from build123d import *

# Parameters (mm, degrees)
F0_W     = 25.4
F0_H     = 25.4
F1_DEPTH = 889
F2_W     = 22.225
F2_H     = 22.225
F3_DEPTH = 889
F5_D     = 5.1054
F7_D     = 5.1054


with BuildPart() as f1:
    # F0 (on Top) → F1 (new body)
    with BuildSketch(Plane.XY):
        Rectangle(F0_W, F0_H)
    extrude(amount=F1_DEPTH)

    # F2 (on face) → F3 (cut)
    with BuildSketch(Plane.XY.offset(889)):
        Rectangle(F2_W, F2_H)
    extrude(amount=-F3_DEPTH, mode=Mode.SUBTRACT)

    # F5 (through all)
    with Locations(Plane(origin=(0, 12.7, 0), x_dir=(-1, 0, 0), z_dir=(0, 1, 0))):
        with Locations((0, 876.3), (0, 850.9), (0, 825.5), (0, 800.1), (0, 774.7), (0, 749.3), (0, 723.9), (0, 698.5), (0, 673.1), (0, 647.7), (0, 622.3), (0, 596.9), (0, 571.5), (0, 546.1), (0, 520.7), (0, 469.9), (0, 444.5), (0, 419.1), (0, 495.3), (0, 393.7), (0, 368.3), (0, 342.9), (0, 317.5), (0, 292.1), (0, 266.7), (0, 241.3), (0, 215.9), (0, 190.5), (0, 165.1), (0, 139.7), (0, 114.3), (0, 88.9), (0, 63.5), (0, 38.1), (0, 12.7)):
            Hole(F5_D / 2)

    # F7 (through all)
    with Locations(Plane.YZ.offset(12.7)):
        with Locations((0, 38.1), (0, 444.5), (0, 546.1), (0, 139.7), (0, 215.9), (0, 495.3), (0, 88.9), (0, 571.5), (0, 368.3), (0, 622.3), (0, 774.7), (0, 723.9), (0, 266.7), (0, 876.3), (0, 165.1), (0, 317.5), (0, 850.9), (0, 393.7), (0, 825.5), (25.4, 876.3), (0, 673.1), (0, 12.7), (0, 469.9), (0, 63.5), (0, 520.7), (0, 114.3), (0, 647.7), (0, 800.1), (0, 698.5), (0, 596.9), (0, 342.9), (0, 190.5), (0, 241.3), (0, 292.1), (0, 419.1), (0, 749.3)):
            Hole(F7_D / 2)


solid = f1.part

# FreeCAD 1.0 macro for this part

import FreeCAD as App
import Part
import Sketcher
from FreeCAD import Vector
Q = App.Units.Quantity


def add_polygon(sketch, points):
    """Adds a closed chain of lines whose ends are joined by coincident constraints."""
    first, n = sketch.GeometryCount, len(points)
    for a, b in zip(points, points[1:] + points[:1]):
        sketch.addGeometry(Part.LineSegment(App.Vector(*a, 0), App.Vector(*b, 0)), False)
    for i in range(n):
        sketch.addConstraint(Sketcher.Constraint("Coincident", first + i, 2, first + (i + 1) % n, 1))

doc = App.newDocument("Part")
body = doc.addObject("PartDesign::Body", "Body")

# Sketch on XY plane
sketch1 = body.newObject("Sketcher::SketchObject", "Sketch")
sketch1.AttachmentSupport = (doc.getObject("XY_Plane"), [""])
sketch1.MapMode = "FlatFace"
add_polygon(sketch1, [(-13, 13), (-13, -13), (13, -13), (13, 13)])  # lines 0-3
sketch1.addConstraint(Sketcher.Constraint("Vertical", 0))
sketch1.addConstraint(Sketcher.Constraint("Horizontal", 1))
sketch1.addConstraint(Sketcher.Constraint("Vertical", 2))
sketch1.addConstraint(Sketcher.Constraint("Horizontal", 3))
sketch1.addConstraint(Sketcher.Constraint("Symmetric", 0, 2, 2, 2, -1, 1))
sketch1.addConstraint(Sketcher.Constraint("Equal", 3, 0))
sketch1.addConstraint(Sketcher.Constraint("DistanceX", 1, 1, 1, 2, Q("1 in")))
pad1 = body.newObject("PartDesign::Pad", "Pad")
pad1.Profile = sketch1
pad1.Length = Q("35 in")

# Sketch on XY plane
sketch2 = body.newObject("Sketcher::SketchObject", "Sketch001")
sketch2.AttachmentSupport = (doc.getObject("XY_Plane"), [""])
sketch2.MapMode = "FlatFace"
sketch2.AttachmentOffset = App.Placement(Vector(0, 0, 35 * 25.4), App.Rotation())
add_polygon(sketch2, [(-11, 11), (-11, -11), (11, -11), (11, 11)])  # lines 0-3
sketch2.addConstraint(Sketcher.Constraint("Vertical", 0))
sketch2.addConstraint(Sketcher.Constraint("Horizontal", 1))
sketch2.addConstraint(Sketcher.Constraint("Vertical", 2))
sketch2.addConstraint(Sketcher.Constraint("Horizontal", 3))
sketch2.addConstraint(Sketcher.Constraint("Symmetric", 0, 2, 2, 2, -1, 1))
sketch2.addConstraint(Sketcher.Constraint("Equal", 3, 0))
sketch2.addConstraint(Sketcher.Constraint("DistanceX", 1, 1, 1, 2, Q("0.875 in")))
pocket1 = body.newObject("PartDesign::Pocket", "Pocket")
pocket1.Profile = sketch2
pocket1.Length = Q("35 in")

# Sketch on XZ plane
sketch3 = body.newObject("Sketcher::SketchObject", "Sketch002")
sketch3.AttachmentSupport = (doc.getObject("XZ_Plane"), [""])
sketch3.MapMode = "FlatFace"
sketch3.AttachmentOffset = App.Placement(Vector(0, 0, -0.5 * 25.4), App.Rotation())
sketch3.addGeometry(Part.Circle(Vector(0, 876.3, 0), Vector(0, 0, 1), 2.6), False)
sketch3.addGeometry(Part.Circle(Vector(0, 850.9, 0), Vector(0, 0, 1), 2.6), False)
sketch3.addGeometry(Part.Circle(Vector(0, 825.5, 0), Vector(0, 0, 1), 2.6), False)
sketch3.addGeometry(Part.Circle(Vector(0, 800.1, 0), Vector(0, 0, 1), 2.6), False)
sketch3.addGeometry(Part.Circle(Vector(0, 774.7, 0), Vector(0, 0, 1), 2.6), False)
sketch3.addGeometry(Part.Circle(Vector(0, 749.3, 0), Vector(0, 0, 1), 2.6), False)
sketch3.addGeometry(Part.Circle(Vector(0, 723.9, 0), Vector(0, 0, 1), 2.6), False)
sketch3.addGeometry(Part.Circle(Vector(0, 698.5, 0), Vector(0, 0, 1), 2.6), False)
sketch3.addGeometry(Part.Circle(Vector(0, 673.1, 0), Vector(0, 0, 1), 2.6), False)
sketch3.addGeometry(Part.Circle(Vector(0, 647.7, 0), Vector(0, 0, 1), 2.6), False)
sketch3.addGeometry(Part.Circle(Vector(0, 622.3, 0), Vector(0, 0, 1), 2.6), False)
sketch3.addGeometry(Part.Circle(Vector(0, 596.9, 0), Vector(0, 0, 1), 2.6), False)
sketch3.addGeometry(Part.Circle(Vector(0, 571.5, 0), Vector(0, 0, 1), 2.6), False)
sketch3.addGeometry(Part.Circle(Vector(0, 546.1, 0), Vector(0, 0, 1), 2.6), False)
sketch3.addGeometry(Part.Circle(Vector(0, 520.7, 0), Vector(0, 0, 1), 2.6), False)
sketch3.addGeometry(Part.Circle(Vector(0, 469.9, 0), Vector(0, 0, 1), 2.6), False)
sketch3.addGeometry(Part.Circle(Vector(0, 444.5, 0), Vector(0, 0, 1), 2.6), False)
sketch3.addGeometry(Part.Circle(Vector(0, 419.1, 0), Vector(0, 0, 1), 2.6), False)
sketch3.addGeometry(Part.Circle(Vector(0, 495.3, 0), Vector(0, 0, 1), 2.6), False)
sketch3.addGeometry(Part.Circle(Vector(0, 393.7, 0), Vector(0, 0, 1), 2.6), False)
sketch3.addGeometry(Part.Circle(Vector(0, 368.3, 0), Vector(0, 0, 1), 2.6), False)
sketch3.addGeometry(Part.Circle(Vector(0, 342.9, 0), Vector(0, 0, 1), 2.6), False)
sketch3.addGeometry(Part.Circle(Vector(0, 317.5, 0), Vector(0, 0, 1), 2.6), False)
sketch3.addGeometry(Part.Circle(Vector(0, 292.1, 0), Vector(0, 0, 1), 2.6), False)
sketch3.addGeometry(Part.Circle(Vector(0, 266.7, 0), Vector(0, 0, 1), 2.6), False)
sketch3.addGeometry(Part.Circle(Vector(0, 241.3, 0), Vector(0, 0, 1), 2.6), False)
sketch3.addGeometry(Part.Circle(Vector(0, 215.9, 0), Vector(0, 0, 1), 2.6), False)
sketch3.addGeometry(Part.Circle(Vector(0, 190.5, 0), Vector(0, 0, 1), 2.6), False)
sketch3.addGeometry(Part.Circle(Vector(0, 165.1, 0), Vector(0, 0, 1), 2.6), False)
sketch3.addGeometry(Part.Circle(Vector(0, 139.7, 0), Vector(0, 0, 1), 2.6), False)
sketch3.addGeometry(Part.Circle(Vector(0, 114.3, 0), Vector(0, 0, 1), 2.6), False)
sketch3.addGeometry(Part.Circle(Vector(0, 88.9, 0), Vector(0, 0, 1), 2.6), False)
sketch3.addGeometry(Part.Circle(Vector(0, 63.5, 0), Vector(0, 0, 1), 2.6), False)
sketch3.addGeometry(Part.Circle(Vector(0, 38.1, 0), Vector(0, 0, 1), 2.6), False)
sketch3.addGeometry(Part.Circle(Vector(0, 12.7, 0), Vector(0, 0, 1), 2.6), False)
sketch3.addConstraint(Sketcher.Constraint("Equal", 0, 1))
sketch3.addConstraint(Sketcher.Constraint("Equal", 1, 2))
sketch3.addConstraint(Sketcher.Constraint("Equal", 2, 3))
sketch3.addConstraint(Sketcher.Constraint("Equal", 3, 4))
sketch3.addConstraint(Sketcher.Constraint("Equal", 4, 5))
sketch3.addConstraint(Sketcher.Constraint("Equal", 5, 6))
sketch3.addConstraint(Sketcher.Constraint("Equal", 6, 7))
sketch3.addConstraint(Sketcher.Constraint("Equal", 7, 8))
sketch3.addConstraint(Sketcher.Constraint("Equal", 8, 9))
sketch3.addConstraint(Sketcher.Constraint("Equal", 9, 10))
sketch3.addConstraint(Sketcher.Constraint("Equal", 10, 11))
sketch3.addConstraint(Sketcher.Constraint("Equal", 11, 12))
sketch3.addConstraint(Sketcher.Constraint("Equal", 12, 13))
sketch3.addConstraint(Sketcher.Constraint("Equal", 13, 14))
sketch3.addConstraint(Sketcher.Constraint("Equal", 14, 15))
sketch3.addConstraint(Sketcher.Constraint("Equal", 15, 16))
sketch3.addConstraint(Sketcher.Constraint("Equal", 16, 17))
sketch3.addConstraint(Sketcher.Constraint("Equal", 17, 18))
sketch3.addConstraint(Sketcher.Constraint("Equal", 18, 19))
sketch3.addConstraint(Sketcher.Constraint("Equal", 19, 20))
sketch3.addConstraint(Sketcher.Constraint("Equal", 20, 21))
sketch3.addConstraint(Sketcher.Constraint("Equal", 21, 22))
sketch3.addConstraint(Sketcher.Constraint("Equal", 22, 23))
sketch3.addConstraint(Sketcher.Constraint("Equal", 23, 24))
sketch3.addConstraint(Sketcher.Constraint("Equal", 24, 25))
sketch3.addConstraint(Sketcher.Constraint("Equal", 25, 26))
sketch3.addConstraint(Sketcher.Constraint("Equal", 26, 27))
sketch3.addConstraint(Sketcher.Constraint("Equal", 27, 28))
sketch3.addConstraint(Sketcher.Constraint("Equal", 28, 29))
sketch3.addConstraint(Sketcher.Constraint("Equal", 29, 30))
sketch3.addConstraint(Sketcher.Constraint("Equal", 30, 31))
sketch3.addConstraint(Sketcher.Constraint("Equal", 31, 32))
sketch3.addConstraint(Sketcher.Constraint("Equal", 32, 33))
sketch3.addConstraint(Sketcher.Constraint("Equal", 33, 34))
sketch3.addConstraint(Sketcher.Constraint("PointOnObject", 0, 3, -2))
sketch3.addConstraint(Sketcher.Constraint("PointOnObject", 1, 3, -2))
sketch3.addConstraint(Sketcher.Constraint("PointOnObject", 2, 3, -2))
sketch3.addConstraint(Sketcher.Constraint("PointOnObject", 3, 3, -2))
sketch3.addConstraint(Sketcher.Constraint("PointOnObject", 4, 3, -2))
sketch3.addConstraint(Sketcher.Constraint("PointOnObject", 5, 3, -2))
sketch3.addConstraint(Sketcher.Constraint("PointOnObject", 6, 3, -2))
sketch3.addConstraint(Sketcher.Constraint("PointOnObject", 7, 3, -2))
sketch3.addConstraint(Sketcher.Constraint("PointOnObject", 8, 3, -2))
sketch3.addConstraint(Sketcher.Constraint("PointOnObject", 9, 3, -2))
sketch3.addConstraint(Sketcher.Constraint("PointOnObject", 10, 3, -2))
sketch3.addConstraint(Sketcher.Constraint("PointOnObject", 11, 3, -2))
sketch3.addConstraint(Sketcher.Constraint("PointOnObject", 12, 3, -2))
sketch3.addConstraint(Sketcher.Constraint("PointOnObject", 13, 3, -2))
sketch3.addConstraint(Sketcher.Constraint("PointOnObject", 14, 3, -2))
sketch3.addConstraint(Sketcher.Constraint("PointOnObject", 15, 3, -2))
sketch3.addConstraint(Sketcher.Constraint("PointOnObject", 16, 3, -2))
sketch3.addConstraint(Sketcher.Constraint("PointOnObject", 17, 3, -2))
sketch3.addConstraint(Sketcher.Constraint("PointOnObject", 18, 3, -2))
sketch3.addConstraint(Sketcher.Constraint("PointOnObject", 19, 3, -2))
sketch3.addConstraint(Sketcher.Constraint("PointOnObject", 20, 3, -2))
sketch3.addConstraint(Sketcher.Constraint("PointOnObject", 21, 3, -2))
sketch3.addConstraint(Sketcher.Constraint("PointOnObject", 22, 3, -2))
sketch3.addConstraint(Sketcher.Constraint("PointOnObject", 23, 3, -2))
sketch3.addConstraint(Sketcher.Constraint("PointOnObject", 24, 3, -2))
sketch3.addConstraint(Sketcher.Constraint("PointOnObject", 25, 3, -2))
sketch3.addConstraint(Sketcher.Constraint("PointOnObject", 26, 3, -2))
sketch3.addConstraint(Sketcher.Constraint("PointOnObject", 27, 3, -2))
sketch3.addConstraint(Sketcher.Constraint("PointOnObject", 28, 3, -2))
sketch3.addConstraint(Sketcher.Constraint("PointOnObject", 29, 3, -2))
sketch3.addConstraint(Sketcher.Constraint("PointOnObject", 30, 3, -2))
sketch3.addConstraint(Sketcher.Constraint("PointOnObject", 31, 3, -2))
sketch3.addConstraint(Sketcher.Constraint("PointOnObject", 32, 3, -2))
sketch3.addConstraint(Sketcher.Constraint("PointOnObject", 33, 3, -2))
sketch3.addConstraint(Sketcher.Constraint("PointOnObject", 34, 3, -2))
sketch3.addConstraint(Sketcher.Constraint("Diameter", 0, Q("0.201 in")))
sketch3.addConstraint(Sketcher.Constraint("DistanceY", 1, 3, 0, 3, Q("1 in")))
sketch3.addConstraint(Sketcher.Constraint("DistanceY", 2, 3, 1, 3, Q("1 in")))
sketch3.addConstraint(Sketcher.Constraint("DistanceY", 3, 3, 2, 3, Q("1 in")))
sketch3.addConstraint(Sketcher.Constraint("DistanceY", 4, 3, 3, 3, Q("1 in")))
sketch3.addConstraint(Sketcher.Constraint("DistanceY", 5, 3, 4, 3, Q("1 in")))
sketch3.addConstraint(Sketcher.Constraint("DistanceY", 6, 3, 5, 3, Q("1 in")))
sketch3.addConstraint(Sketcher.Constraint("DistanceY", 7, 3, 6, 3, Q("1 in")))
sketch3.addConstraint(Sketcher.Constraint("DistanceY", 8, 3, 7, 3, Q("1 in")))
sketch3.addConstraint(Sketcher.Constraint("DistanceY", 9, 3, 8, 3, Q("1 in")))
sketch3.addConstraint(Sketcher.Constraint("DistanceY", 10, 3, 9, 3, Q("1 in")))
sketch3.addConstraint(Sketcher.Constraint("DistanceY", 11, 3, 10, 3, Q("1 in")))
sketch3.addConstraint(Sketcher.Constraint("DistanceY", 12, 3, 11, 3, Q("1 in")))
sketch3.addConstraint(Sketcher.Constraint("DistanceY", 13, 3, 12, 3, Q("1 in")))
sketch3.addConstraint(Sketcher.Constraint("DistanceY", 14, 3, 13, 3, Q("1 in")))
sketch3.addConstraint(Sketcher.Constraint("DistanceY", 15, 3, 14, 3, Q("2 in")))
sketch3.addConstraint(Sketcher.Constraint("DistanceY", 16, 3, 15, 3, Q("1 in")))
sketch3.addConstraint(Sketcher.Constraint("DistanceY", 17, 3, 16, 3, Q("1 in")))
sketch3.addConstraint(Sketcher.Constraint("DistanceY", 18, 3, 14, 3, Q("1 in")))
sketch3.addConstraint(Sketcher.Constraint("DistanceY", 19, 3, 17, 3, Q("1 in")))
sketch3.addConstraint(Sketcher.Constraint("DistanceY", 20, 3, 19, 3, Q("1 in")))
sketch3.addConstraint(Sketcher.Constraint("DistanceY", 21, 3, 20, 3, Q("1 in")))
sketch3.addConstraint(Sketcher.Constraint("DistanceY", 22, 3, 21, 3, Q("1 in")))
sketch3.addConstraint(Sketcher.Constraint("DistanceY", 23, 3, 22, 3, Q("1 in")))
sketch3.addConstraint(Sketcher.Constraint("DistanceY", 24, 3, 23, 3, Q("1 in")))
sketch3.addConstraint(Sketcher.Constraint("DistanceY", 25, 3, 24, 3, Q("1 in")))
sketch3.addConstraint(Sketcher.Constraint("DistanceY", 26, 3, 25, 3, Q("1 in")))
sketch3.addConstraint(Sketcher.Constraint("DistanceY", 27, 3, 26, 3, Q("1 in")))
sketch3.addConstraint(Sketcher.Constraint("DistanceY", 28, 3, 27, 3, Q("1 in")))
sketch3.addConstraint(Sketcher.Constraint("DistanceY", 29, 3, 28, 3, Q("1 in")))
sketch3.addConstraint(Sketcher.Constraint("DistanceY", 30, 3, 29, 3, Q("1 in")))
sketch3.addConstraint(Sketcher.Constraint("DistanceY", 31, 3, 30, 3, Q("1 in")))
sketch3.addConstraint(Sketcher.Constraint("DistanceY", 32, 3, 31, 3, Q("1 in")))
sketch3.addConstraint(Sketcher.Constraint("DistanceY", 33, 3, 32, 3, Q("1 in")))
sketch3.addConstraint(Sketcher.Constraint("DistanceY", 34, 3, 33, 3, Q("1 in")))
sketch3.addConstraint(Sketcher.Constraint("DistanceY", -1, 1, 0, 3, Q("34.5 in")))
doc.recompute()
hole = body.newObject("PartDesign::Hole", "Hole")
hole.Profile = sketch3
hole.ThreadType = "None"
hole.Diameter = Q("0.201 in")
hole.DepthType = "ThroughAll"
hole.Reversed = True

# Sketch on YZ plane
sketch4 = body.newObject("Sketcher::SketchObject", "Sketch003")
sketch4.AttachmentSupport = (doc.getObject("YZ_Plane"), [""])
sketch4.MapMode = "FlatFace"
sketch4.AttachmentOffset = App.Placement(Vector(0, 0, 0.5 * 25.4), App.Rotation())
sketch4.addGeometry(Part.Circle(Vector(0, 38.1, 0), Vector(0, 0, 1), 2.6), False)
sketch4.addGeometry(Part.Circle(Vector(0, 444.5, 0), Vector(0, 0, 1), 2.6), False)
sketch4.addGeometry(Part.Circle(Vector(0, 546.1, 0), Vector(0, 0, 1), 2.6), False)
sketch4.addGeometry(Part.Circle(Vector(0, 139.7, 0), Vector(0, 0, 1), 2.6), False)
sketch4.addGeometry(Part.Circle(Vector(0, 215.9, 0), Vector(0, 0, 1), 2.6), False)
sketch4.addGeometry(Part.Circle(Vector(0, 495.3, 0), Vector(0, 0, 1), 2.6), False)
sketch4.addGeometry(Part.Circle(Vector(0, 88.9, 0), Vector(0, 0, 1), 2.6), False)
sketch4.addGeometry(Part.Circle(Vector(0, 571.5, 0), Vector(0, 0, 1), 2.6), False)
sketch4.addGeometry(Part.Circle(Vector(0, 368.3, 0), Vector(0, 0, 1), 2.6), False)
sketch4.addGeometry(Part.Circle(Vector(0, 622.3, 0), Vector(0, 0, 1), 2.6), False)
sketch4.addGeometry(Part.Circle(Vector(0, 774.7, 0), Vector(0, 0, 1), 2.6), False)
sketch4.addGeometry(Part.Circle(Vector(0, 723.9, 0), Vector(0, 0, 1), 2.6), False)
sketch4.addGeometry(Part.Circle(Vector(0, 266.7, 0), Vector(0, 0, 1), 2.6), False)
sketch4.addGeometry(Part.Circle(Vector(0, 876.3, 0), Vector(0, 0, 1), 2.6), False)
sketch4.addGeometry(Part.Circle(Vector(0, 165.1, 0), Vector(0, 0, 1), 2.6), False)
sketch4.addGeometry(Part.Circle(Vector(0, 317.5, 0), Vector(0, 0, 1), 2.6), False)
sketch4.addGeometry(Part.Circle(Vector(0, 850.9, 0), Vector(0, 0, 1), 2.6), False)
sketch4.addGeometry(Part.Circle(Vector(0, 393.7, 0), Vector(0, 0, 1), 2.6), False)
sketch4.addGeometry(Part.Circle(Vector(0, 825.5, 0), Vector(0, 0, 1), 2.6), False)
sketch4.addGeometry(Part.Circle(Vector(25.4, 876.3, 0), Vector(0, 0, 1), 2.6), False)
sketch4.addGeometry(Part.Circle(Vector(0, 673.1, 0), Vector(0, 0, 1), 2.6), False)
sketch4.addGeometry(Part.Circle(Vector(0, 12.7, 0), Vector(0, 0, 1), 2.6), False)
sketch4.addGeometry(Part.Circle(Vector(0, 469.9, 0), Vector(0, 0, 1), 2.6), False)
sketch4.addGeometry(Part.Circle(Vector(0, 63.5, 0), Vector(0, 0, 1), 2.6), False)
sketch4.addGeometry(Part.Circle(Vector(0, 520.7, 0), Vector(0, 0, 1), 2.6), False)
sketch4.addGeometry(Part.Circle(Vector(0, 114.3, 0), Vector(0, 0, 1), 2.6), False)
sketch4.addGeometry(Part.Circle(Vector(0, 647.7, 0), Vector(0, 0, 1), 2.6), False)
sketch4.addGeometry(Part.Circle(Vector(0, 800.1, 0), Vector(0, 0, 1), 2.6), False)
sketch4.addGeometry(Part.Circle(Vector(0, 698.5, 0), Vector(0, 0, 1), 2.6), False)
sketch4.addGeometry(Part.Circle(Vector(0, 596.9, 0), Vector(0, 0, 1), 2.6), False)
sketch4.addGeometry(Part.Circle(Vector(0, 342.9, 0), Vector(0, 0, 1), 2.6), False)
sketch4.addGeometry(Part.Circle(Vector(0, 190.5, 0), Vector(0, 0, 1), 2.6), False)
sketch4.addGeometry(Part.Circle(Vector(0, 241.3, 0), Vector(0, 0, 1), 2.6), False)
sketch4.addGeometry(Part.Circle(Vector(0, 292.1, 0), Vector(0, 0, 1), 2.6), False)
sketch4.addGeometry(Part.Circle(Vector(0, 419.1, 0), Vector(0, 0, 1), 2.6), False)
sketch4.addGeometry(Part.Circle(Vector(0, 749.3, 0), Vector(0, 0, 1), 2.6), False)
sketch4.addConstraint(Sketcher.Constraint("Equal", 0, 1))
sketch4.addConstraint(Sketcher.Constraint("Equal", 1, 2))
sketch4.addConstraint(Sketcher.Constraint("Equal", 2, 3))
sketch4.addConstraint(Sketcher.Constraint("Equal", 3, 4))
sketch4.addConstraint(Sketcher.Constraint("Equal", 4, 5))
sketch4.addConstraint(Sketcher.Constraint("Equal", 5, 6))
sketch4.addConstraint(Sketcher.Constraint("Equal", 6, 7))
sketch4.addConstraint(Sketcher.Constraint("Equal", 7, 8))
sketch4.addConstraint(Sketcher.Constraint("Equal", 8, 9))
sketch4.addConstraint(Sketcher.Constraint("Equal", 9, 10))
sketch4.addConstraint(Sketcher.Constraint("Equal", 10, 11))
sketch4.addConstraint(Sketcher.Constraint("Equal", 11, 12))
sketch4.addConstraint(Sketcher.Constraint("Equal", 12, 13))
sketch4.addConstraint(Sketcher.Constraint("Equal", 13, 14))
sketch4.addConstraint(Sketcher.Constraint("Equal", 14, 15))
sketch4.addConstraint(Sketcher.Constraint("Equal", 15, 16))
sketch4.addConstraint(Sketcher.Constraint("Equal", 16, 17))
sketch4.addConstraint(Sketcher.Constraint("Equal", 17, 18))
sketch4.addConstraint(Sketcher.Constraint("Equal", 18, 19))
sketch4.addConstraint(Sketcher.Constraint("Equal", 19, 20))
sketch4.addConstraint(Sketcher.Constraint("Equal", 20, 21))
sketch4.addConstraint(Sketcher.Constraint("Equal", 21, 22))
sketch4.addConstraint(Sketcher.Constraint("Equal", 22, 23))
sketch4.addConstraint(Sketcher.Constraint("Equal", 23, 24))
sketch4.addConstraint(Sketcher.Constraint("Equal", 24, 25))
sketch4.addConstraint(Sketcher.Constraint("Equal", 25, 26))
sketch4.addConstraint(Sketcher.Constraint("Equal", 26, 27))
sketch4.addConstraint(Sketcher.Constraint("Equal", 27, 28))
sketch4.addConstraint(Sketcher.Constraint("Equal", 28, 29))
sketch4.addConstraint(Sketcher.Constraint("Equal", 29, 30))
sketch4.addConstraint(Sketcher.Constraint("Equal", 30, 31))
sketch4.addConstraint(Sketcher.Constraint("Equal", 31, 32))
sketch4.addConstraint(Sketcher.Constraint("Equal", 32, 33))
sketch4.addConstraint(Sketcher.Constraint("Equal", 33, 34))
sketch4.addConstraint(Sketcher.Constraint("Equal", 34, 35))
sketch4.addConstraint(Sketcher.Constraint("PointOnObject", 0, 3, -2))
sketch4.addConstraint(Sketcher.Constraint("PointOnObject", 1, 3, -2))
sketch4.addConstraint(Sketcher.Constraint("PointOnObject", 2, 3, -2))
sketch4.addConstraint(Sketcher.Constraint("PointOnObject", 3, 3, -2))
sketch4.addConstraint(Sketcher.Constraint("PointOnObject", 4, 3, -2))
sketch4.addConstraint(Sketcher.Constraint("PointOnObject", 5, 3, -2))
sketch4.addConstraint(Sketcher.Constraint("PointOnObject", 6, 3, -2))
sketch4.addConstraint(Sketcher.Constraint("PointOnObject", 7, 3, -2))
sketch4.addConstraint(Sketcher.Constraint("PointOnObject", 8, 3, -2))
sketch4.addConstraint(Sketcher.Constraint("PointOnObject", 9, 3, -2))
sketch4.addConstraint(Sketcher.Constraint("PointOnObject", 10, 3, -2))
sketch4.addConstraint(Sketcher.Constraint("PointOnObject", 11, 3, -2))
sketch4.addConstraint(Sketcher.Constraint("PointOnObject", 12, 3, -2))
sketch4.addConstraint(Sketcher.Constraint("PointOnObject", 13, 3, -2))
sketch4.addConstraint(Sketcher.Constraint("PointOnObject", 14, 3, -2))
sketch4.addConstraint(Sketcher.Constraint("PointOnObject", 15, 3, -2))
sketch4.addConstraint(Sketcher.Constraint("PointOnObject", 16, 3, -2))
sketch4.addConstraint(Sketcher.Constraint("PointOnObject", 17, 3, -2))
sketch4.addConstraint(Sketcher.Constraint("PointOnObject", 18, 3, -2))
sketch4.addConstraint(Sketcher.Constraint("PointOnObject", 20, 3, -2))
sketch4.addConstraint(Sketcher.Constraint("PointOnObject", 21, 3, -2))
sketch4.addConstraint(Sketcher.Constraint("PointOnObject", 22, 3, -2))
sketch4.addConstraint(Sketcher.Constraint("PointOnObject", 23, 3, -2))
sketch4.addConstraint(Sketcher.Constraint("PointOnObject", 24, 3, -2))
sketch4.addConstraint(Sketcher.Constraint("PointOnObject", 25, 3, -2))
sketch4.addConstraint(Sketcher.Constraint("PointOnObject", 26, 3, -2))
sketch4.addConstraint(Sketcher.Constraint("PointOnObject", 27, 3, -2))
sketch4.addConstraint(Sketcher.Constraint("PointOnObject", 28, 3, -2))
sketch4.addConstraint(Sketcher.Constraint("PointOnObject", 29, 3, -2))
sketch4.addConstraint(Sketcher.Constraint("PointOnObject", 30, 3, -2))
sketch4.addConstraint(Sketcher.Constraint("PointOnObject", 31, 3, -2))
sketch4.addConstraint(Sketcher.Constraint("PointOnObject", 32, 3, -2))
sketch4.addConstraint(Sketcher.Constraint("PointOnObject", 33, 3, -2))
sketch4.addConstraint(Sketcher.Constraint("PointOnObject", 34, 3, -2))
sketch4.addConstraint(Sketcher.Constraint("PointOnObject", 35, 3, -2))
sketch4.addConstraint(Sketcher.Constraint("Horizontal", 13, 3, 19, 3))
sketch4.addConstraint(Sketcher.Constraint("Diameter", 0, Q("0.201 in")))
sketch4.addConstraint(Sketcher.Constraint("DistanceX", -1, 1, 19, 3, Q("1 in")))
sketch4.addConstraint(Sketcher.Constraint("DistanceY", 0, 3, 1, 3, Q("16 in")))
sketch4.addConstraint(Sketcher.Constraint("DistanceY", 1, 3, 2, 3, Q("4 in")))
sketch4.addConstraint(Sketcher.Constraint("DistanceY", 0, 3, 3, 3, Q("4 in")))
sketch4.addConstraint(Sketcher.Constraint("DistanceY", 3, 3, 4, 3, Q("3 in")))
sketch4.addConstraint(Sketcher.Constraint("DistanceY", 1, 3, 5, 3, Q("2 in")))
sketch4.addConstraint(Sketcher.Constraint("DistanceY", 6, 3, 3, 3, Q("2 in")))
sketch4.addConstraint(Sketcher.Constraint("DistanceY", 2, 3, 7, 3, Q("1 in")))
sketch4.addConstraint(Sketcher.Constraint("DistanceY", 8, 3, 1, 3, Q("3 in")))
sketch4.addConstraint(Sketcher.Constraint("DistanceY", 7, 3, 9, 3, Q("2 in")))
sketch4.addConstraint(Sketcher.Constraint("DistanceY", 9, 3, 10, 3, Q("6 in")))
sketch4.addConstraint(Sketcher.Constraint("DistanceY", 11, 3, 10, 3, Q("2 in")))
sketch4.addConstraint(Sketcher.Constraint("DistanceY", 4, 3, 12, 3, Q("2 in")))
sketch4.addConstraint(Sketcher.Constraint("DistanceY", 10, 3, 13, 3, Q("4 in")))
sketch4.addConstraint(Sketcher.Constraint("DistanceY", 3, 3, 14, 3, Q("1 in")))
sketch4.addConstraint(Sketcher.Constraint("DistanceY", 15, 3, 8, 3, Q("2 in")))
sketch4.addConstraint(Sketcher.Constraint("DistanceY", 16, 3, 13, 3, Q("1 in")))
sketch4.addConstraint(Sketcher.Constraint("DistanceY", 8, 3, 17, 3, Q("1 in")))
sketch4.addConstraint(Sketcher.Constraint("DistanceY", 18, 3, 16, 3, Q("1 in")))
sketch4.addConstraint(Sketcher.Constraint("DistanceY", 20, 3, 11, 3, Q("2 in")))
sketch4.addConstraint(Sketcher.Constraint("DistanceY", 21, 3, 0, 3, Q("1 in")))
sketch4.addConstraint(Sketcher.Constraint("DistanceY", 1, 3, 22, 3, Q("1 in")))
sketch4.addConstraint(Sketcher.Constraint("DistanceY", 0, 3, 23, 3, Q("1 in")))
sketch4.addConstraint(Sketcher.Constraint("DistanceY", 24, 3, 2, 3, Q("1 in")))
sketch4.addConstraint(Sketcher.Constraint("DistanceY", 25, 3, 3, 3, Q("1 in")))
sketch4.addConstraint(Sketcher.Constraint("DistanceY", 26, 3, 20, 3, Q("1 in")))
sketch4.addConstraint(Sketcher.Constraint("DistanceY", 10, 3, 27, 3, Q("1 in")))
sketch4.addConstraint(Sketcher.Constraint("DistanceY", 28, 3, 11, 3, Q("1 in")))
sketch4.addConstraint(Sketcher.Constraint("DistanceY", 7, 3, 29, 3, Q("1 in")))
sketch4.addConstraint(Sketcher.Constraint("DistanceY", 15, 3, 30, 3, Q("1 in")))
sketch4.addConstraint(Sketcher.Constraint("DistanceY", 31, 3, 4, 3, Q("1 in")))
sketch4.addConstraint(Sketcher.Constraint("DistanceY", 32, 3, 12, 3, Q("1 in")))
sketch4.addConstraint(Sketcher.Constraint("DistanceY", 33, 3, 15, 3, Q("1 in")))
sketch4.addConstraint(Sketcher.Constraint("DistanceY", 34, 3, 1, 3, Q("1 in")))
sketch4.addConstraint(Sketcher.Constraint("DistanceY", 11, 3, 35, 3, Q("1 in")))
sketch4.addConstraint(Sketcher.Constraint("DistanceY", -1, 1, 0, 3, Q("1.5 in")))
doc.recompute()
hole2 = body.newObject("PartDesign::Hole", "Hole001")
hole2.Profile = sketch4
hole2.ThreadType = "None"
hole2.Diameter = Q("0.201 in")
hole2.DepthType = "ThroughAll"

doc.recompute()
